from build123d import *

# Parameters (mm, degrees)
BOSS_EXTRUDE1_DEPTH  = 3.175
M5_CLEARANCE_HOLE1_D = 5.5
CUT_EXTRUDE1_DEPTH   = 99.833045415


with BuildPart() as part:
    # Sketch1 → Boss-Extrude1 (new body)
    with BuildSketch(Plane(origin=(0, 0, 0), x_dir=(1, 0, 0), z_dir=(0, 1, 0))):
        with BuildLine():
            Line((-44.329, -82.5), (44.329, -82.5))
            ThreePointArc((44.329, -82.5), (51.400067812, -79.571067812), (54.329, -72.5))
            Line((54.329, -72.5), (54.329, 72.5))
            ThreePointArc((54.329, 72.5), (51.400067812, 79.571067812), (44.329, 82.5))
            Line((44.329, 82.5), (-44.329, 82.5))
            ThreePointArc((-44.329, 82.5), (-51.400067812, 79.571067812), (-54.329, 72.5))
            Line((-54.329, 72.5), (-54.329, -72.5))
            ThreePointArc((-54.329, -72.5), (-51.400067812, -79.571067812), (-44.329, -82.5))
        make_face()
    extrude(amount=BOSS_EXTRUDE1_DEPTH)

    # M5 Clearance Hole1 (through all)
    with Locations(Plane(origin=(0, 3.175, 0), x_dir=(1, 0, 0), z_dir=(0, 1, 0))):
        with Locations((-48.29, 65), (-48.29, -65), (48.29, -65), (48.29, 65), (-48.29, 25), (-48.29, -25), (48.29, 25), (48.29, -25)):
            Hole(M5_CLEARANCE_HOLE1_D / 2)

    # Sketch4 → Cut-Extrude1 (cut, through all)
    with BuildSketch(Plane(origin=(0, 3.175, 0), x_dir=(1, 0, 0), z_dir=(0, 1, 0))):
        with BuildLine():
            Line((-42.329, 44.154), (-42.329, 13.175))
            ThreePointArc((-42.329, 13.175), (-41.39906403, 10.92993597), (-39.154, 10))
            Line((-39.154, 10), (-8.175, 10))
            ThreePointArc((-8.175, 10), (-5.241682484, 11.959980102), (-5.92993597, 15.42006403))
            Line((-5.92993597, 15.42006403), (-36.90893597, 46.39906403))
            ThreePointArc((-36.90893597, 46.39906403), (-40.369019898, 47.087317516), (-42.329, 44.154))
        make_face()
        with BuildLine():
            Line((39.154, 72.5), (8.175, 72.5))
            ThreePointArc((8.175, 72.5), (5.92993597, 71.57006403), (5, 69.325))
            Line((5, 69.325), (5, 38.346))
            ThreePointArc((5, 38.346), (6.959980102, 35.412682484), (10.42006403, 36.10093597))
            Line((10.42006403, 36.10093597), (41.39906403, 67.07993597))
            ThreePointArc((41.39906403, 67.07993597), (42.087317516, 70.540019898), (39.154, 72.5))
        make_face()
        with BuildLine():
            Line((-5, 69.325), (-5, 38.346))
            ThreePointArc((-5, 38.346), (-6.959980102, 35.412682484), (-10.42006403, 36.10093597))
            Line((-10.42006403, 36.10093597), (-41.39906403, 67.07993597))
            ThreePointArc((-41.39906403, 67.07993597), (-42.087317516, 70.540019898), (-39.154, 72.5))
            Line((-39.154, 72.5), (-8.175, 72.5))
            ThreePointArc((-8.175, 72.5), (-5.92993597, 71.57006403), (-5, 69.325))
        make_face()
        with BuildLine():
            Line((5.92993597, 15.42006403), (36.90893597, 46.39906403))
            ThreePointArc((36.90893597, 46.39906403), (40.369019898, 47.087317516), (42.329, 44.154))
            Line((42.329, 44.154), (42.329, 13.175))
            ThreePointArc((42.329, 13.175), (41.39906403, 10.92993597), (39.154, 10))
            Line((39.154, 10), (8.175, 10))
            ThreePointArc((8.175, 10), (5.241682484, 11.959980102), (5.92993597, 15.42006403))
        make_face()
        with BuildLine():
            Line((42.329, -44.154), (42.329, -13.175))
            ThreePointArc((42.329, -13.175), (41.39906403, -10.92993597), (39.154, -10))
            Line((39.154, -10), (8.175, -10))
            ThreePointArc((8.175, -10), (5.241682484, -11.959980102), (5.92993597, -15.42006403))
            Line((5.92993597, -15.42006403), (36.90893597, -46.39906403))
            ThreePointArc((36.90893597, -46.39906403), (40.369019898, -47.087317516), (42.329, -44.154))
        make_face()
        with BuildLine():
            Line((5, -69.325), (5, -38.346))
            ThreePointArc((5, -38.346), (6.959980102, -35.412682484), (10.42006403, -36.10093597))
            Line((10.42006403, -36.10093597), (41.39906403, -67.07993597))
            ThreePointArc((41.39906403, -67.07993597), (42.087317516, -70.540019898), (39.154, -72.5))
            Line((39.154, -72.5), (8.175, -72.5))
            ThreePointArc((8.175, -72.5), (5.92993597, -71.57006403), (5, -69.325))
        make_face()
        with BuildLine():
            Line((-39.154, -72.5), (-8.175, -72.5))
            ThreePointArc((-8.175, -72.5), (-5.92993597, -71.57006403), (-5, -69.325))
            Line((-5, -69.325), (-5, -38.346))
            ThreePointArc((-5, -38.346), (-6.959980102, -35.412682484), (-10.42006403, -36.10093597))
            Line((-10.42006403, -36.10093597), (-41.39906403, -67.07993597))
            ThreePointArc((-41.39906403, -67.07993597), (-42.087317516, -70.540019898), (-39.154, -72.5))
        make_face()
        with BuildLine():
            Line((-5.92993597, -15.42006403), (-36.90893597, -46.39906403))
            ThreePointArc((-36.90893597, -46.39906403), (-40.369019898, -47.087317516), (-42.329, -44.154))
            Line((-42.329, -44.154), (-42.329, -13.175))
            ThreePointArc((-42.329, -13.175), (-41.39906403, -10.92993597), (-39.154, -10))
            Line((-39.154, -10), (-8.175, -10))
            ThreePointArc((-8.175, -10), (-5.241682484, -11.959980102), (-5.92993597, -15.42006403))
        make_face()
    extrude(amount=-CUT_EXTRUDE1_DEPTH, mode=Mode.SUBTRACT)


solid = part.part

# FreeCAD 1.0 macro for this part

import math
import FreeCAD as App
import Part
import Sketcher
from FreeCAD import Vector

doc = App.newDocument("Part")
body = doc.addObject("PartDesign::Body", "Body")

sketch1 = doc.addObject("Sketcher::SketchObject", "Sketch")
body.addObject(sketch1)
sketch1.AttachmentSupport = (doc.XZ_Plane, [""])
sketch1.MapMode = "FlatFace"
sketch1.addGeometry(Part.LineSegment(Vector(-44, 82, 0), Vector(44, 82, 0)), False)
sketch1.addGeometry(Part.ArcOfCircle(Part.Circle(Vector(44, 72, 0), Vector(0, 0, 1), 10), math.radians(0), math.radians(90)), False)
sketch1.addGeometry(Part.LineSegment(Vector(54, 72, 0), Vector(54, -72, 0)), False)
sketch1.addGeometry(Part.ArcOfCircle(Part.Circle(Vector(44, -72, 0), Vector(0, 0, 1), 10), math.radians(-90), math.radians(0)), False)
sketch1.addGeometry(Part.LineSegment(Vector(44, -82, 0), Vector(-44, -82, 0)), False)
sketch1.addGeometry(Part.ArcOfCircle(Part.Circle(Vector(-44, -72, 0), Vector(0, 0, 1), 10), math.radians(180), math.radians(270)), False)
sketch1.addGeometry(Part.LineSegment(Vector(-54, -72, 0), Vector(-54, 72, 0)), False)
sketch1.addGeometry(Part.ArcOfCircle(Part.Circle(Vector(-44, 72, 0), Vector(0, 0, 1), 10), math.radians(90), math.radians(180)), False)
sketch1.addConstraint(Sketcher.Constraint("Tangent", 0, 2, 1, 2))
sketch1.addConstraint(Sketcher.Constraint("Tangent", 1, 1, 2, 1))
sketch1.addConstraint(Sketcher.Constraint("Tangent", 2, 2, 3, 2))
sketch1.addConstraint(Sketcher.Constraint("Tangent", 3, 1, 4, 1))
sketch1.addConstraint(Sketcher.Constraint("Tangent", 4, 2, 5, 2))
sketch1.addConstraint(Sketcher.Constraint("Tangent", 5, 1, 6, 1))
sketch1.addConstraint(Sketcher.Constraint("Tangent", 6, 2, 7, 2))
sketch1.addConstraint(Sketcher.Constraint("Tangent", 7, 1, 0, 1))
sketch1.addConstraint(Sketcher.Constraint("Horizontal", 0))
sketch1.addConstraint(Sketcher.Constraint("Vertical", 2))
sketch1.addConstraint(Sketcher.Constraint("Horizontal", 4))
sketch1.addConstraint(Sketcher.Constraint("Vertical", 6))
sketch1.addConstraint(Sketcher.Constraint("Equal", 1, 3))
sketch1.addConstraint(Sketcher.Constraint("Equal", 3, 5))
sketch1.addConstraint(Sketcher.Constraint("Equal", 5, 7))
sketch1.addConstraint(Sketcher.Constraint("Symmetric", 1, 3, 5, 3, -1, 1))
sketch1.addConstraint(Sketcher.Constraint("Radius", 1, 10.0))
sketch1.addConstraint(Sketcher.Constraint("DistanceY", 2, 2, 2, 1, 145.0))
sketch1.addConstraint(Sketcher.Constraint("DistanceX", 0, 1, 0, 2, 88.658))
pad1 = doc.addObject("PartDesign::Pad", "Pad")
body.addObject(pad1)
pad1.Profile = sketch1
pad1.Length = 3.175
pad1.Reversed = True

sketch2 = doc.addObject("Sketcher::SketchObject", "Sketch001")
body.addObject(sketch2)
sketch2.AttachmentSupport = (doc.XZ_Plane, [""])
sketch2.MapMode = "FlatFace"
sketch2.AttachmentOffset = App.Placement(Vector(0, 0, -3.175), App.Rotation())
sketch2.addGeometry(Part.Circle(Vector(-48.3, -65, 0), Vector(0, 0, 1), 2.8), False)
sketch2.addGeometry(Part.Circle(Vector(-48.3, 65, 0), Vector(0, 0, 1), 2.8), False)
sketch2.addGeometry(Part.Circle(Vector(48.3, 65, 0), Vector(0, 0, 1), 2.8), False)
sketch2.addGeometry(Part.Circle(Vector(48.3, -65, 0), Vector(0, 0, 1), 2.8), False)
sketch2.addGeometry(Part.Circle(Vector(-48.3, -25, 0), Vector(0, 0, 1), 2.8), False)
sketch2.addGeometry(Part.Circle(Vector(-48.3, 25, 0), Vector(0, 0, 1), 2.8), False)
sketch2.addGeometry(Part.Circle(Vector(48.3, -25, 0), Vector(0, 0, 1), 2.8), False)
sketch2.addGeometry(Part.Circle(Vector(48.3, 25, 0), Vector(0, 0, 1), 2.8), False)
sketch2.addConstraint(Sketcher.Constraint("Equal", 0, 1))
sketch2.addConstraint(Sketcher.Constraint("Equal", 1, 2))
sketch2.addConstraint(Sketcher.Constraint("Equal", 2, 3))
sketch2.addConstraint(Sketcher.Constraint("Equal", 3, 4))
sketch2.addConstraint(Sketcher.Constraint("Equal", 4, 5))
sketch2.addConstraint(Sketcher.Constraint("Equal", 5, 6))
sketch2.addConstraint(Sketcher.Constraint("Equal", 6, 7))
sketch2.addConstraint(Sketcher.Constraint("Symmetric", 0, 3, 2, 3, -1, 1))
sketch2.addConstraint(Sketcher.Constraint("Symmetric", 1, 3, 3, 3, -1, 1))
sketch2.addConstraint(Sketcher.Constraint("Symmetric", 5, 3, 6, 3, -1, 1))
sketch2.addConstraint(Sketcher.Constraint("Symmetric", 4, 3, 7, 3, -1, 1))
sketch2.addConstraint(Sketcher.Constraint("Symmetric", 1, 3, 2, 3, -2))
sketch2.addConstraint(Sketcher.Constraint("Symmetric", 4, 3, 6, 3, -2))
sketch2.addConstraint(Sketcher.Constraint("Vertical", 1, 3, 4, 3))
sketch2.addConstraint(Sketcher.Constraint("Diameter", 0, 5.5))
sketch2.addConstraint(Sketcher.Constraint("DistanceY", 0, 3, -1, 1, 65.0))
sketch2.addConstraint(Sketcher.Constraint("DistanceY", 4, 3, -1, 1, 25.0))
sketch2.addConstraint(Sketcher.Constraint("DistanceX", 0, 3, -1, 1, 48.29))
doc.recompute()
hole = doc.addObject("PartDesign::Hole", "Hole")
body.addObject(hole)
hole.Profile = sketch2
hole.ThreadType = "None"
hole.Diameter = 5.5
hole.DepthType = "ThroughAll"
hole.Reversed = True

sketch3 = doc.addObject("Sketcher::SketchObject", "Sketch002")
body.addObject(sketch3)
sketch3.AttachmentSupport = (doc.XZ_Plane, [""])
sketch3.MapMode = "FlatFace"
sketch3.AttachmentOffset = App.Placement(Vector(0, 0, -3.175), App.Rotation())
sketch3.addGeometry(Part.LineSegment(Vector(-42.3, -44.2, 0), Vector(-42.3, -13.2, 0)), False)
sketch3.addGeometry(Part.ArcOfCircle(Part.Circle(Vector(-39.2, -13.2, 0), Vector(0, 0, 1), 3.2), math.radians(90), math.radians(180)), False)
sketch3.addGeometry(Part.LineSegment(Vector(-39.2, -10, 0), Vector(-8.2, -10, 0)), False)
sketch3.addGeometry(Part.ArcOfCircle(Part.Circle(Vector(-8.2, -13.2, 0), Vector(0, 0, 1), 3.2), math.radians(-45), math.radians(90)), False)
sketch3.addGeometry(Part.LineSegment(Vector(-5.9, -15.4, 0), Vector(-36.9, -46.4, 0)), False)
sketch3.addGeometry(Part.ArcOfCircle(Part.Circle(Vector(-39.2, -44.2, 0), Vector(0, 0, 1), 3.2), math.radians(180), math.radians(315)), False)
sketch3.addGeometry(Part.LineSegment(Vector(39.2, -72.5, 0), Vector(8.2, -72.5, 0)), False)
sketch3.addGeometry(Part.ArcOfCircle(Part.Circle(Vector(8.2, -69.3, 0), Vector(0, 0, 1), 3.2), math.radians(-180), math.radians(-90)), False)
sketch3.addGeometry(Part.LineSegment(Vector(5, -69.3, 0), Vector(5, -38.3, 0)), False)
sketch3.addGeometry(Part.ArcOfCircle(Part.Circle(Vector(8.2, -38.3, 0), Vector(0, 0, 1), 3.2), math.radians(45), math.radians(180)), False)
sketch3.addGeometry(Part.LineSegment(Vector(10.4, -36.1, 0), Vector(41.4, -67.1, 0)), False)
sketch3.addGeometry(Part.ArcOfCircle(Part.Circle(Vector(39.2, -69.3, 0), Vector(0, 0, 1), 3.2), math.radians(-90), math.radians(45)), False)
sketch3.addGeometry(Part.LineSegment(Vector(-5, -38.3, 0), Vector(-5, -69.3, 0)), False)
sketch3.addGeometry(Part.ArcOfCircle(Part.Circle(Vector(-8.2, -69.3, 0), Vector(0, 0, 1), 3.2), math.radians(-90), math.radians(0)), False)
sketch3.addGeometry(Part.LineSegment(Vector(-8.2, -72.5, 0), Vector(-39.2, -72.5, 0)), False)
sketch3.addGeometry(Part.ArcOfCircle(Part.Circle(Vector(-39.2, -69.3, 0), Vector(0, 0, 1), 3.2), math.radians(135), math.radians(270)), False)
sketch3.addGeometry(Part.LineSegment(Vector(-41.4, -67.1, 0), Vector(-10.4, -36.1, 0)), False)
sketch3.addGeometry(Part.ArcOfCircle(Part.Circle(Vector(-8.2, -38.3, 0), Vector(0, 0, 1), 3.2), math.radians(0), math.radians(135)), False)
sketch3.addGeometry(Part.LineSegment(Vector(36.9, -46.4, 0), Vector(5.9, -15.4, 0)), False)
sketch3.addGeometry(Part.ArcOfCircle(Part.Circle(Vector(8.2, -13.2, 0), Vector(0, 0, 1), 3.2), math.radians(90), math.radians(225)), False)
sketch3.addGeometry(Part.LineSegment(Vector(8.2, -10, 0), Vector(39.2, -10, 0)), False)
sketch3.addGeometry(Part.ArcOfCircle(Part.Circle(Vector(39.2, -13.2, 0), Vector(0, 0, 1), 3.2), math.radians(0), math.radians(90)), False)
sketch3.addGeometry(Part.LineSegment(Vector(42.3, -13.2, 0), Vector(42.3, -44.2, 0)), False)
sketch3.addGeometry(Part.ArcOfCircle(Part.Circle(Vector(39.2, -44.2, 0), Vector(0, 0, 1), 3.2), math.radians(-135), math.radians(0)), False)
sketch3.addGeometry(Part.LineSegment(Vector(42.3, 44.2, 0), Vector(42.3, 13.2, 0)), False)
sketch3.addGeometry(Part.ArcOfCircle(Part.Circle(Vector(39.2, 13.2, 0), Vector(0, 0, 1), 3.2), math.radians(-90), math.radians(0)), False)
sketch3.addGeometry(Part.LineSegment(Vector(39.2, 10, 0), Vector(8.2, 10, 0)), False)
sketch3.addGeometry(Part.ArcOfCircle(Part.Circle(Vector(8.2, 13.2, 0), Vector(0, 0, 1), 3.2), math.radians(135), math.radians(270)), False)
sketch3.addGeometry(Part.LineSegment(Vector(5.9, 15.4, 0), Vector(36.9, 46.4, 0)), False)
sketch3.addGeometry(Part.ArcOfCircle(Part.Circle(Vector(39.2, 44.2, 0), Vector(0, 0, 1), 3.2), math.radians(0), math.radians(135)), False)
sketch3.addGeometry(Part.LineSegment(Vector(5, 38.3, 0), Vector(5, 69.3, 0)), False)
sketch3.addGeometry(Part.ArcOfCircle(Part.Circle(Vector(8.2, 69.3, 0), Vector(0, 0, 1), 3.2), math.radians(90), math.radians(180)), False)
sketch3.addGeometry(Part.LineSegment(Vector(8.2, 72.5, 0), Vector(39.2, 72.5, 0)), False)
sketch3.addGeometry(Part.ArcOfCircle(Part.Circle(Vector(39.2, 69.3, 0), Vector(0, 0, 1), 3.2), math.radians(-45), math.radians(90)), False)
sketch3.addGeometry(Part.LineSegment(Vector(41.4, 67.1, 0), Vector(10.4, 36.1, 0)), False)
sketch3.addGeometry(Part.ArcOfCircle(Part.Circle(Vector(8.2, 38.3, 0), Vector(0, 0, 1), 3.2), math.radians(180), math.radians(315)), False)
sketch3.addGeometry(Part.LineSegment(Vector(-39.2, 72.5, 0), Vector(-8.2, 72.5, 0)), False)
sketch3.addGeometry(Part.ArcOfCircle(Part.Circle(Vector(-8.2, 69.3, 0), Vector(0, 0, 1), 3.2), math.radians(0), math.radians(90)), False)
sketch3.addGeometry(Part.LineSegment(Vector(-5, 69.3, 0), Vector(-5, 38.3, 0)), False)
sketch3.addGeometry(Part.ArcOfCircle(Part.Circle(Vector(-8.2, 38.3, 0), Vector(0, 0, 1), 3.2), math.radians(-135), math.radians(0)), False)
sketch3.addGeometry(Part.LineSegment(Vector(-10.4, 36.1, 0), Vector(-41.4, 67.1, 0)), False)
sketch3.addGeometry(Part.ArcOfCircle(Part.Circle(Vector(-39.2, 69.3, 0), Vector(0, 0, 1), 3.2), math.radians(90), math.radians(225)), False)
sketch3.addGeometry(Part.LineSegment(Vector(-36.9, 46.4, 0), Vector(-5.9, 15.4, 0)), False)
sketch3.addGeometry(Part.ArcOfCircle(Part.Circle(Vector(-8.2, 13.2, 0), Vector(0, 0, 1), 3.2), math.radians(-90), math.radians(45)), False)
sketch3.addGeometry(Part.LineSegment(Vector(-8.2, 10, 0), Vector(-39.2, 10, 0)), False)
sketch3.addGeometry(Part.ArcOfCircle(Part.Circle(Vector(-39.2, 13.2, 0), Vector(0, 0, 1), 3.2), math.radians(-180), math.radians(-90)), False)
sketch3.addGeometry(Part.LineSegment(Vector(-42.3, 13.2, 0), Vector(-42.3, 44.2, 0)), False)
sketch3.addGeometry(Part.ArcOfCircle(Part.Circle(Vector(-39.2, 44.2, 0), Vector(0, 0, 1), 3.2), math.radians(45), math.radians(180)), False)
sketch3.addConstraint(Sketcher.Constraint("Tangent", 0, 2, 1, 2))
sketch3.addConstraint(Sketcher.Constraint("Tangent", 1, 1, 2, 1))
sketch3.addConstraint(Sketcher.Constraint("Tangent", 2, 2, 3, 2))
sketch3.addConstraint(Sketcher.Constraint("Tangent", 3, 1, 4, 1))
sketch3.addConstraint(Sketcher.Constraint("Tangent", 4, 2, 5, 2))
sketch3.addConstraint(Sketcher.Constraint("Tangent", 5, 1, 0, 1))
sketch3.addConstraint(Sketcher.Constraint("Tangent", 6, 2, 7, 2))
sketch3.addConstraint(Sketcher.Constraint("Tangent", 7, 1, 8, 1))
sketch3.addConstraint(Sketcher.Constraint("Tangent", 8, 2, 9, 2))
sketch3.addConstraint(Sketcher.Constraint("Tangent", 9, 1, 10, 1))
sketch3.addConstraint(Sketcher.Constraint("Tangent", 10, 2, 11, 2))
sketch3.addConstraint(Sketcher.Constraint("Tangent", 11, 1, 6, 1))
sketch3.addConstraint(Sketcher.Constraint("Tangent", 12, 2, 13, 2))
sketch3.addConstraint(Sketcher.Constraint("Tangent", 13, 1, 14, 1))
sketch3.addConstraint(Sketcher.Constraint("Tangent", 14, 2, 15, 2))
sketch3.addConstraint(Sketcher.Constraint("Tangent", 15, 1, 16, 1))
sketch3.addConstraint(Sketcher.Constraint("Tangent", 16, 2, 17, 2))
sketch3.addConstraint(Sketcher.Constraint("Tangent", 17, 1, 12, 1))
sketch3.addConstraint(Sketcher.Constraint("Tangent", 18, 2, 19, 2))
sketch3.addConstraint(Sketcher.Constraint("Tangent", 19, 1, 20, 1))
sketch3.addConstraint(Sketcher.Constraint("Tangent", 20, 2, 21, 2))
sketch3.addConstraint(Sketcher.Constraint("Tangent", 21, 1, 22, 1))
sketch3.addConstraint(Sketcher.Constraint("Tangent", 22, 2, 23, 2))
sketch3.addConstraint(Sketcher.Constraint("Tangent", 23, 1, 18, 1))
sketch3.addConstraint(Sketcher.Constraint("Tangent", 24, 2, 25, 2))
sketch3.addConstraint(Sketcher.Constraint("Tangent", 25, 1, 26, 1))
sketch3.addConstraint(Sketcher.Constraint("Tangent", 26, 2, 27, 2))
sketch3.addConstraint(Sketcher.Constraint("Tangent", 27, 1, 28, 1))
sketch3.addConstraint(Sketcher.Constraint("Tangent", 28, 2, 29, 2))
sketch3.addConstraint(Sketcher.Constraint("Tangent", 29, 1, 24, 1))
sketch3.addConstraint(Sketcher.Constraint("Tangent", 30, 2, 31, 2))
sketch3.addConstraint(Sketcher.Constraint("Tangent", 31, 1, 32, 1))
sketch3.addConstraint(Sketcher.Constraint("Tangent", 32, 2, 33, 2))
sketch3.addConstraint(Sketcher.Constraint("Tangent", 33, 1, 34, 1))
sketch3.addConstraint(Sketcher.Constraint("Tangent", 34, 2, 35, 2))
sketch3.addConstraint(Sketcher.Constraint("Tangent", 35, 1, 30, 1))
sketch3.addConstraint(Sketcher.Constraint("Tangent", 36, 2, 37, 2))
sketch3.addConstraint(Sketcher.Constraint("Tangent", 37, 1, 38, 1))
sketch3.addConstraint(Sketcher.Constraint("Tangent", 38, 2, 39, 2))
sketch3.addConstraint(Sketcher.Constraint("Tangent", 39, 1, 40, 1))
sketch3.addConstraint(Sketcher.Constraint("Tangent", 40, 2, 41, 2))
sketch3.addConstraint(Sketcher.Constraint("Tangent", 41, 1, 36, 1))
sketch3.addConstraint(Sketcher.Constraint("Tangent", 42, 2, 43, 2))
sketch3.addConstraint(Sketcher.Constraint("Tangent", 43, 1, 44, 1))
sketch3.addConstraint(Sketcher.Constraint("Tangent", 44, 2, 45, 2))
sketch3.addConstraint(Sketcher.Constraint("Tangent", 45, 1, 46, 1))
sketch3.addConstraint(Sketcher.Constraint("Tangent", 46, 2, 47, 2))
sketch3.addConstraint(Sketcher.Constraint("Tangent", 47, 1, 42, 1))
sketch3.addConstraint(Sketcher.Constraint("Vertical", 0))
sketch3.addConstraint(Sketcher.Constraint("Horizontal", 2))
sketch3.addConstraint(Sketcher.Constraint("Horizontal", 6))
sketch3.addConstraint(Sketcher.Constraint("Vertical", 8))
sketch3.addConstraint(Sketcher.Constraint("Vertical", 12))
sketch3.addConstraint(Sketcher.Constraint("Horizontal", 14))
sketch3.addConstraint(Sketcher.Constraint("Horizontal", 20))
sketch3.addConstraint(Sketcher.Constraint("Vertical", 22))
sketch3.addConstraint(Sketcher.Constraint("Vertical", 24))
sketch3.addConstraint(Sketcher.Constraint("Horizontal", 26))
sketch3.addConstraint(Sketcher.Constraint("Vertical", 30))
sketch3.addConstraint(Sketcher.Constraint("Horizontal", 32))
sketch3.addConstraint(Sketcher.Constraint("Horizontal", 36))
sketch3.addConstraint(Sketcher.Constraint("Vertical", 38))
sketch3.addConstraint(Sketcher.Constraint("Horizontal", 44))
sketch3.addConstraint(Sketcher.Constraint("Vertical", 46))
sketch3.addConstraint(Sketcher.Constraint("Equal", 1, 3))
sketch3.addConstraint(Sketcher.Constraint("Equal", 3, 5))
sketch3.addConstraint(Sketcher.Constraint("Equal", 5, 7))
sketch3.addConstraint(Sketcher.Constraint("Equal", 7, 9))
sketch3.addConstraint(Sketcher.Constraint("Equal", 9, 11))
sketch3.addConstraint(Sketcher.Constraint("Equal", 11, 13))
sketch3.addConstraint(Sketcher.Constraint("Equal", 13, 15))
sketch3.addConstraint(Sketcher.Constraint("Equal", 15, 17))
sketch3.addConstraint(Sketcher.Constraint("Equal", 17, 19))
sketch3.addConstraint(Sketcher.Constraint("Equal", 19, 21))
sketch3.addConstraint(Sketcher.Constraint("Equal", 21, 23))
sketch3.addConstraint(Sketcher.Constraint("Equal", 23, 25))
sketch3.addConstraint(Sketcher.Constraint("Equal", 25, 27))
sketch3.addConstraint(Sketcher.Constraint("Equal", 27, 29))
sketch3.addConstraint(Sketcher.Constraint("Equal", 29, 31))
sketch3.addConstraint(Sketcher.Constraint("Equal", 31, 33))
sketch3.addConstraint(Sketcher.Constraint("Equal", 33, 35))
sketch3.addConstraint(Sketcher.Constraint("Equal", 35, 37))
sketch3.addConstraint(Sketcher.Constraint("Equal", 37, 39))
sketch3.addConstraint(Sketcher.Constraint("Equal", 39, 41))
sketch3.addConstraint(Sketcher.Constraint("Equal", 41, 43))
sketch3.addConstraint(Sketcher.Constraint("Equal", 43, 45))
sketch3.addConstraint(Sketcher.Constraint("Equal", 45, 47))
sketch3.addConstraint(Sketcher.Constraint("Symmetric", 1, 3, 25, 3, -1, 1))
sketch3.addConstraint(Sketcher.Constraint("Symmetric", 13, 3, 31, 3, -1, 1))
sketch3.addConstraint(Sketcher.Constraint("Symmetric", 7, 3, 37, 3, -1, 1))
sketch3.addConstraint(Sketcher.Constraint("Symmetric", 19, 3, 43, 3, -1, 1))
sketch3.addConstraint(Sketcher.Constraint("Symmetric", 23, 3, 47, 3, -1, 1))
sketch3.addConstraint(Sketcher.Constraint("Symmetric", 3, 1, 27, 1, -1, 1))
sketch3.addConstraint(Sketcher.Constraint("Symmetric", 15, 1, 33, 1, -1, 1))
sketch3.addConstraint(Sketcher.Constraint("Symmetric", 9, 1, 39, 1, -1, 1))
sketch3.addConstraint(Sketcher.Constraint("Symmetric", 7, 3, 13, 3, -2))
sketch3.addConstraint(Sketcher.Constraint("Symmetric", 3, 3, 19, 3, -2))
sketch3.addConstraint(Sketcher.Constraint("Symmetric", 5, 3, 23, 3, -2))
sketch3.addConstraint(Sketcher.Constraint("Symmetric", 10, 2, 15, 1, -2))
sketch3.addConstraint(Sketcher.Constraint("Perpendicular", 4, 10))
sketch3.addConstraint(Sketcher.Constraint("Perpendicular", 10, 16))
sketch3.addConstraint(Sketcher.Constraint("Vertical", 3, 3, 13, 3))
sketch3.addConstraint(Sketcher.Constraint("Vertical", 5, 3, 15, 3))
sketch3.addConstraint(Sketcher.Constraint("DistanceY", 1, 1, -1, 1, 10.0))
sketch3.addConstraint(Sketcher.Constraint("DistanceX", -1, 1, 7, 1, 5.0))
sketch3.addConstraint(Sketcher.Constraint("Radius", 1, 3.175))
sketch3.addConstraint(Sketcher.Constraint("DistanceY", 6, 2, -1, 1, 72.5))
sketch3.addConstraint(Sketcher.Constraint("DistanceX", 2, 1, 2, 2, 30.979))
pocket1 = doc.addObject("PartDesign::Pocket", "Pocket")
body.addObject(pocket1)
pocket1.Profile = sketch3
pocket1.Type = "ThroughAll"
pocket1.Reversed = True

doc.recompute()
